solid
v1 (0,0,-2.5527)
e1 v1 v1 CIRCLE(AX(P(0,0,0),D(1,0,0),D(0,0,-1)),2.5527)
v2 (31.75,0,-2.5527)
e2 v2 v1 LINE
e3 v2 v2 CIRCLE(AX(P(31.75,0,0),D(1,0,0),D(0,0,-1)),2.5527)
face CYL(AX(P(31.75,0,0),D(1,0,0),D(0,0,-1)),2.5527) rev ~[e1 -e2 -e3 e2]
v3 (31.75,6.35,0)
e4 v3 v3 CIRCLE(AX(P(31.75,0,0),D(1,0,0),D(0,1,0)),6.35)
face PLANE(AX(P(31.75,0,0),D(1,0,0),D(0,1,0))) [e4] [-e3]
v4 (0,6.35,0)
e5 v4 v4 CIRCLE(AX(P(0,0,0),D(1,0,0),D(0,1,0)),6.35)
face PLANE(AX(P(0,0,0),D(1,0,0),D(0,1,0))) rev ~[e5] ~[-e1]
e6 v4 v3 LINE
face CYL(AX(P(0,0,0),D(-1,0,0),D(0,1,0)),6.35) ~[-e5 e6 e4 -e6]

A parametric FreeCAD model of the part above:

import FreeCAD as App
import Part
import Sketcher
from FreeCAD import Vector
Q = App.Units.Quantity

doc = App.newDocument("Part")
body = doc.addObject("PartDesign::Body", "Body")

sketch1 = body.newObject("Sketcher::SketchObject", "Sketch")
sketch1.AttachmentSupport = (doc.getObject("YZ_Plane"), [""])
sketch1.MapMode = "FlatFace"
sketch1.addGeometry(Part.Circle(Vector(0, 0, 0), Vector(0, 0, 1), 6), False)
sketch1.addConstraint([
    Sketcher.Constraint("Coincident", 0, 3, -1, 1),
    Sketcher.Constraint("Diameter", 0, Q("0.5 in")),
])
pad1 = body.newObject("PartDesign::Pad", "Pad")
pad1.Profile = sketch1
pad1.Length = Q("1.25 in")

sketch2 = body.newObject("Sketcher::SketchObject", "Sketch001")
sketch2.AttachmentSupport = (doc.getObject("YZ_Plane"), [""])
sketch2.MapMode = "FlatFace"
sketch2.AttachmentOffset = App.Placement(Vector(0, 0, 1.25 * 25.4), App.Rotation())
sketch2.addGeometry(Part.Circle(Vector(0, 0, 0), Vector(0, 0, 1), 2.6), False)
sketch2.addConstraint([
    Sketcher.Constraint("Coincident", 0, 3, -1, 1),
    Sketcher.Constraint("Diameter", 0, Q("0.201 in")),
])
pocket1 = body.newObject("PartDesign::Pocket", "Pocket")
pocket1.Profile = sketch2
pocket1.Type = "ThroughAll"

doc.recompute()
